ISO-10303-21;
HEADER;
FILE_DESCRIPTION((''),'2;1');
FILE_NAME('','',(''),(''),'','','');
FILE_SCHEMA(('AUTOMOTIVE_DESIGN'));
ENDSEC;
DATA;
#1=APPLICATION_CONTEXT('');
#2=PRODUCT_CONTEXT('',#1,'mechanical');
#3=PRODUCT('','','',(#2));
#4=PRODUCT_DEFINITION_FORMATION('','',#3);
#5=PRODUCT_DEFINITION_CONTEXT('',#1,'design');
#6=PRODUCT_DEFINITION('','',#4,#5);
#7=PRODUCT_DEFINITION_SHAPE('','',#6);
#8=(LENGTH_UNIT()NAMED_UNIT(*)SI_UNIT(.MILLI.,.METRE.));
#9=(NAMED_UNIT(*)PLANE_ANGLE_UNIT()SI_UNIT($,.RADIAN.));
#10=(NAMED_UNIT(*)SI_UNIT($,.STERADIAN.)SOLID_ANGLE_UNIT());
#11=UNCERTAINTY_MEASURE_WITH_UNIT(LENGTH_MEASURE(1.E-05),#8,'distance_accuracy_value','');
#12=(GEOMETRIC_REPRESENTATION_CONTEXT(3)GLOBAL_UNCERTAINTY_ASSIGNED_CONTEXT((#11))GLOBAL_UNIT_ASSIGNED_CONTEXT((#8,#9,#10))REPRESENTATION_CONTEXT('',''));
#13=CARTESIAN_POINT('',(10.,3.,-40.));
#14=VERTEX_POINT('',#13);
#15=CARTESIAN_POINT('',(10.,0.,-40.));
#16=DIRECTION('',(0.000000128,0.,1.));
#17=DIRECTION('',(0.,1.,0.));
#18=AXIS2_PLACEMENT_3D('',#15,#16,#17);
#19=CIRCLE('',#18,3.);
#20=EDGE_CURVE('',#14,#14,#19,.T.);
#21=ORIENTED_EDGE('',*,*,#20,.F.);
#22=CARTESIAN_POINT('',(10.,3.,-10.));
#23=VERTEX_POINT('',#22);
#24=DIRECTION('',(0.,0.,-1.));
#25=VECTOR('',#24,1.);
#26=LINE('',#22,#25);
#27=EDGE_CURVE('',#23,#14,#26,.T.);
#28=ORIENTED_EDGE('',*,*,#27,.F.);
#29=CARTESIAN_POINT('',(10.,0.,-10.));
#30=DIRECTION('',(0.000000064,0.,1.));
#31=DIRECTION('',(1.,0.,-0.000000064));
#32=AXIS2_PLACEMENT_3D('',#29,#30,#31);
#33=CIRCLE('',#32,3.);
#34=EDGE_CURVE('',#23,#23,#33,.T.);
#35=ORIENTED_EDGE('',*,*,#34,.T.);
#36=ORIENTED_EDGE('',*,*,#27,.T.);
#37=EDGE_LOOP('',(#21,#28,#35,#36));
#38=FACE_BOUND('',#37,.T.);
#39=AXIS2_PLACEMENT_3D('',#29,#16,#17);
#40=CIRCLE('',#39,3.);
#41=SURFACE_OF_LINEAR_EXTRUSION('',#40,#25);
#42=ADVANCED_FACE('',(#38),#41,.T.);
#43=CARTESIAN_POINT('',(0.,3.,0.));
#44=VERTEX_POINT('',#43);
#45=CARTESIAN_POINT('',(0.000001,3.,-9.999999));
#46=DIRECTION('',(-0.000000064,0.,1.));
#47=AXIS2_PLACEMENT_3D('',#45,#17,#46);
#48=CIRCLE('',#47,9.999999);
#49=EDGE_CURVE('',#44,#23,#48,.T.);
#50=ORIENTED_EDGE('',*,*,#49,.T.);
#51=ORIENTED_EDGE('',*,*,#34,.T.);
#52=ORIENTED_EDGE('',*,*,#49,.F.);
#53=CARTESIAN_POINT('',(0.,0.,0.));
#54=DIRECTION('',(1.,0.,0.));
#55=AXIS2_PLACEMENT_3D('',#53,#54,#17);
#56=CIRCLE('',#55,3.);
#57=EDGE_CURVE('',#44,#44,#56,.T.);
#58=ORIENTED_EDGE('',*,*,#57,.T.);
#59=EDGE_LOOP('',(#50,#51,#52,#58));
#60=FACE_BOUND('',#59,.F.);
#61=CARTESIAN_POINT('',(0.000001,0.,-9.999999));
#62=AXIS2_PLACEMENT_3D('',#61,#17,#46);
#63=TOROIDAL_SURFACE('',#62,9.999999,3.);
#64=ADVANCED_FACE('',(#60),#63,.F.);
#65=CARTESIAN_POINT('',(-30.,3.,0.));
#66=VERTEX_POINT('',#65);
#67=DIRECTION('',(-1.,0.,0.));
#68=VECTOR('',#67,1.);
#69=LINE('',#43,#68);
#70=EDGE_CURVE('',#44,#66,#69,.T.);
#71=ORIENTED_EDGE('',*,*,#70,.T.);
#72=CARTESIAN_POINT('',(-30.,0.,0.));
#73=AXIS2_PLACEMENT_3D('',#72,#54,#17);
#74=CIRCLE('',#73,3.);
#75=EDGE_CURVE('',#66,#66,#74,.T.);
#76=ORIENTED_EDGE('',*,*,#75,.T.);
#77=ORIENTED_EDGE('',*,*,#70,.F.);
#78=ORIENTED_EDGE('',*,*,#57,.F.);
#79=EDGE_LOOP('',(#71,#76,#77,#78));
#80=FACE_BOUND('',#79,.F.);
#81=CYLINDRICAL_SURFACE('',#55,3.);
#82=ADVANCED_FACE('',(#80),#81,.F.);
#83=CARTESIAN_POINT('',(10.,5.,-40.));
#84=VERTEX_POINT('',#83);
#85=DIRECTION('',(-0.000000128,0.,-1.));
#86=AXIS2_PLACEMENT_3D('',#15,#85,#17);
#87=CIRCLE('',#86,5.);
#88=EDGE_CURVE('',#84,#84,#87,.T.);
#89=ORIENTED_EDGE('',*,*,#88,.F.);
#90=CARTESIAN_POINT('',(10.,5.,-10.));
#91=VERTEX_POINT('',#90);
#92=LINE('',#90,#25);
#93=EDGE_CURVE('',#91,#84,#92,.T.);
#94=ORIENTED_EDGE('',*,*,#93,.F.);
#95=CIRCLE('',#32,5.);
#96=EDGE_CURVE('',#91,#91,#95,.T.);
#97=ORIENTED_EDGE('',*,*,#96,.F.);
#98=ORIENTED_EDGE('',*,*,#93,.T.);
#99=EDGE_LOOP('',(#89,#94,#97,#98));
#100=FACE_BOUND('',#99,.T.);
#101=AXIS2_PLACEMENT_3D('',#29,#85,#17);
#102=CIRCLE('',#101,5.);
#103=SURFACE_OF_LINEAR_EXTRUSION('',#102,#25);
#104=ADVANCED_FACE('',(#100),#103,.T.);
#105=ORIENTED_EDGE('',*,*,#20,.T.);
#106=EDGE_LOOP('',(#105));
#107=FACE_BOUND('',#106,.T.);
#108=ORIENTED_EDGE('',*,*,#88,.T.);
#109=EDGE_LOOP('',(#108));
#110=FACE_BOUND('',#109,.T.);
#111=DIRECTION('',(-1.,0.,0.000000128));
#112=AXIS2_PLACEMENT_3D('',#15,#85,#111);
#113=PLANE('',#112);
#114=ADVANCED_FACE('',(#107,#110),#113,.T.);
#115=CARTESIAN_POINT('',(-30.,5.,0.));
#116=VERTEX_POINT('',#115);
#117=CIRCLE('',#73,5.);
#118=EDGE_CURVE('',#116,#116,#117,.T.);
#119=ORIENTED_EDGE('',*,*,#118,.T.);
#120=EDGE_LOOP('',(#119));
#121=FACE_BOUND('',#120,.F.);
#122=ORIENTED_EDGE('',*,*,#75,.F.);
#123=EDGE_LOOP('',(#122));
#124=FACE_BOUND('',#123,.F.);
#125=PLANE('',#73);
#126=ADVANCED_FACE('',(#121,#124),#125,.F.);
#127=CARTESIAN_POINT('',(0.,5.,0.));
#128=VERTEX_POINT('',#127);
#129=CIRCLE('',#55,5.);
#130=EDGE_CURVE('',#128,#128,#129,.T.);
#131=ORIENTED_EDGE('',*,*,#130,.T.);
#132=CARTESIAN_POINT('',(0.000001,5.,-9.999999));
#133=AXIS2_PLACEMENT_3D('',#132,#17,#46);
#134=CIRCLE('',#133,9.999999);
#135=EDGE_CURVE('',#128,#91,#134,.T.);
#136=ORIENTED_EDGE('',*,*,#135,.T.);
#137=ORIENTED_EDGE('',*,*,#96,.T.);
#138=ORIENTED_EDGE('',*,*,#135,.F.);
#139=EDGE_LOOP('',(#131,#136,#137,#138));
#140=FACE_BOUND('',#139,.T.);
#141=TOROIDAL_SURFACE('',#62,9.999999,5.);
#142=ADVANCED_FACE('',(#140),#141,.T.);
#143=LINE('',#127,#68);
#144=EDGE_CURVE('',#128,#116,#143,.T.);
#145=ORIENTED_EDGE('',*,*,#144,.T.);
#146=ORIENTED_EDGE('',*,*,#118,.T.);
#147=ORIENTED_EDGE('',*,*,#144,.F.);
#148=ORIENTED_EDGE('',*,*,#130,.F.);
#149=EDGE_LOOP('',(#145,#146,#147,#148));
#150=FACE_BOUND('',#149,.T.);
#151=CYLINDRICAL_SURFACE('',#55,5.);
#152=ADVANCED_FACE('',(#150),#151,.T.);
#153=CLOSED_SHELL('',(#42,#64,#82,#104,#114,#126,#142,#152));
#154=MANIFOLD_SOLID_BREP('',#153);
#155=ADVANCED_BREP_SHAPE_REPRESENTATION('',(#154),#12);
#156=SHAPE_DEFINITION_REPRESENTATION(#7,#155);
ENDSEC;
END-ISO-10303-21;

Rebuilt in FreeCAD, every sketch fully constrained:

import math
import FreeCAD as App
import Part
import Sketcher
from FreeCAD import Vector
Q = App.Units.Quantity

doc = App.newDocument("Part")
body = doc.addObject("PartDesign::Body", "Body")

# Sketch on YZ plane
sketch1 = doc.addObject("Sketcher::SketchObject", "Sketch")
body.addObject(sketch1)
sketch1.AttachmentSupport = (doc.YZ_Plane, [""])
sketch1.MapMode = "FlatFace"
sketch1.addGeometry([
    Part.Circle(Vector(0, 0, 0), Vector(0, 0, 1), 5),
    Part.Circle(Vector(0, 0, 0), Vector(0, 0, 1), 3),
], False)
sketch1.addConstraint([
    Sketcher.Constraint("Coincident", 0, 3, -1, 1),
    Sketcher.Constraint("Coincident", 1, 3, -1, 1),
    Sketcher.Constraint("Diameter", 0, Q("10 mm")),
    Sketcher.Constraint("Diameter", 1, Q("6 mm")),
])
pad1 = doc.addObject("PartDesign::Pad", "Pad")
body.addObject(pad1)
pad1.Profile = sketch1
pad1.Length = 30
pad1.Reversed = True

# Sketch on YZ plane
sketch2 = doc.addObject("Sketcher::SketchObject", "Sketch001")
body.addObject(sketch2)
sketch2.AttachmentSupport = (doc.YZ_Plane, [""])
sketch2.MapMode = "FlatFace"
sketch2.addGeometry([
    Part.Circle(Vector(0, 0, 0), Vector(0, 0, 1), 5),
    Part.Circle(Vector(0, 0, 0), Vector(0, 0, 1), 3),
], False)
sketch2.addConstraint([
    Sketcher.Constraint("Coincident", 0, 3, -1, 1),
    Sketcher.Constraint("Coincident", 1, 3, -1, 1),
    Sketcher.Constraint("Diameter", 0, Q("10 mm")),
    Sketcher.Constraint("Diameter", 1, Q("6 mm")),
])

# Sketch on XZ plane
sketch3 = doc.addObject("Sketcher::SketchObject", "Sketch002")
body.addObject(sketch3)
sketch3.AttachmentSupport = (doc.XZ_Plane, [""])
sketch3.MapMode = "FlatFace"
sketch3.addGeometry([
    Part.ArcOfCircle(Part.Circle(Vector(0, -10, 0), Vector(0, 0, 1), 10), math.radians(0), math.radians(90)),
    Part.LineSegment(Vector(10, -10, 0), Vector(10, -40, 0)),
], False)
sketch3.addConstraint([
    Sketcher.Constraint("Tangent", 0, 1, 1, 1),
    Sketcher.Constraint("Vertical", 1),
    Sketcher.Constraint("Coincident", 0, 2, -1, 1),
    Sketcher.Constraint("PointOnObject", 0, 3, -2),
    Sketcher.Constraint("Radius", 0, Q("9.999999 mm")),
    Sketcher.Constraint("DistanceY", 1, 2, 1, 1, Q("30 mm")),
])
doc.recompute()

additivepipe = doc.addObject("PartDesign::AdditivePipe", "AdditivePipe")
body.addObject(additivepipe)
additivepipe.Profile = sketch2
additivepipe.Spine = (sketch3, ["Edge1", "Edge2"])

doc.recompute()
